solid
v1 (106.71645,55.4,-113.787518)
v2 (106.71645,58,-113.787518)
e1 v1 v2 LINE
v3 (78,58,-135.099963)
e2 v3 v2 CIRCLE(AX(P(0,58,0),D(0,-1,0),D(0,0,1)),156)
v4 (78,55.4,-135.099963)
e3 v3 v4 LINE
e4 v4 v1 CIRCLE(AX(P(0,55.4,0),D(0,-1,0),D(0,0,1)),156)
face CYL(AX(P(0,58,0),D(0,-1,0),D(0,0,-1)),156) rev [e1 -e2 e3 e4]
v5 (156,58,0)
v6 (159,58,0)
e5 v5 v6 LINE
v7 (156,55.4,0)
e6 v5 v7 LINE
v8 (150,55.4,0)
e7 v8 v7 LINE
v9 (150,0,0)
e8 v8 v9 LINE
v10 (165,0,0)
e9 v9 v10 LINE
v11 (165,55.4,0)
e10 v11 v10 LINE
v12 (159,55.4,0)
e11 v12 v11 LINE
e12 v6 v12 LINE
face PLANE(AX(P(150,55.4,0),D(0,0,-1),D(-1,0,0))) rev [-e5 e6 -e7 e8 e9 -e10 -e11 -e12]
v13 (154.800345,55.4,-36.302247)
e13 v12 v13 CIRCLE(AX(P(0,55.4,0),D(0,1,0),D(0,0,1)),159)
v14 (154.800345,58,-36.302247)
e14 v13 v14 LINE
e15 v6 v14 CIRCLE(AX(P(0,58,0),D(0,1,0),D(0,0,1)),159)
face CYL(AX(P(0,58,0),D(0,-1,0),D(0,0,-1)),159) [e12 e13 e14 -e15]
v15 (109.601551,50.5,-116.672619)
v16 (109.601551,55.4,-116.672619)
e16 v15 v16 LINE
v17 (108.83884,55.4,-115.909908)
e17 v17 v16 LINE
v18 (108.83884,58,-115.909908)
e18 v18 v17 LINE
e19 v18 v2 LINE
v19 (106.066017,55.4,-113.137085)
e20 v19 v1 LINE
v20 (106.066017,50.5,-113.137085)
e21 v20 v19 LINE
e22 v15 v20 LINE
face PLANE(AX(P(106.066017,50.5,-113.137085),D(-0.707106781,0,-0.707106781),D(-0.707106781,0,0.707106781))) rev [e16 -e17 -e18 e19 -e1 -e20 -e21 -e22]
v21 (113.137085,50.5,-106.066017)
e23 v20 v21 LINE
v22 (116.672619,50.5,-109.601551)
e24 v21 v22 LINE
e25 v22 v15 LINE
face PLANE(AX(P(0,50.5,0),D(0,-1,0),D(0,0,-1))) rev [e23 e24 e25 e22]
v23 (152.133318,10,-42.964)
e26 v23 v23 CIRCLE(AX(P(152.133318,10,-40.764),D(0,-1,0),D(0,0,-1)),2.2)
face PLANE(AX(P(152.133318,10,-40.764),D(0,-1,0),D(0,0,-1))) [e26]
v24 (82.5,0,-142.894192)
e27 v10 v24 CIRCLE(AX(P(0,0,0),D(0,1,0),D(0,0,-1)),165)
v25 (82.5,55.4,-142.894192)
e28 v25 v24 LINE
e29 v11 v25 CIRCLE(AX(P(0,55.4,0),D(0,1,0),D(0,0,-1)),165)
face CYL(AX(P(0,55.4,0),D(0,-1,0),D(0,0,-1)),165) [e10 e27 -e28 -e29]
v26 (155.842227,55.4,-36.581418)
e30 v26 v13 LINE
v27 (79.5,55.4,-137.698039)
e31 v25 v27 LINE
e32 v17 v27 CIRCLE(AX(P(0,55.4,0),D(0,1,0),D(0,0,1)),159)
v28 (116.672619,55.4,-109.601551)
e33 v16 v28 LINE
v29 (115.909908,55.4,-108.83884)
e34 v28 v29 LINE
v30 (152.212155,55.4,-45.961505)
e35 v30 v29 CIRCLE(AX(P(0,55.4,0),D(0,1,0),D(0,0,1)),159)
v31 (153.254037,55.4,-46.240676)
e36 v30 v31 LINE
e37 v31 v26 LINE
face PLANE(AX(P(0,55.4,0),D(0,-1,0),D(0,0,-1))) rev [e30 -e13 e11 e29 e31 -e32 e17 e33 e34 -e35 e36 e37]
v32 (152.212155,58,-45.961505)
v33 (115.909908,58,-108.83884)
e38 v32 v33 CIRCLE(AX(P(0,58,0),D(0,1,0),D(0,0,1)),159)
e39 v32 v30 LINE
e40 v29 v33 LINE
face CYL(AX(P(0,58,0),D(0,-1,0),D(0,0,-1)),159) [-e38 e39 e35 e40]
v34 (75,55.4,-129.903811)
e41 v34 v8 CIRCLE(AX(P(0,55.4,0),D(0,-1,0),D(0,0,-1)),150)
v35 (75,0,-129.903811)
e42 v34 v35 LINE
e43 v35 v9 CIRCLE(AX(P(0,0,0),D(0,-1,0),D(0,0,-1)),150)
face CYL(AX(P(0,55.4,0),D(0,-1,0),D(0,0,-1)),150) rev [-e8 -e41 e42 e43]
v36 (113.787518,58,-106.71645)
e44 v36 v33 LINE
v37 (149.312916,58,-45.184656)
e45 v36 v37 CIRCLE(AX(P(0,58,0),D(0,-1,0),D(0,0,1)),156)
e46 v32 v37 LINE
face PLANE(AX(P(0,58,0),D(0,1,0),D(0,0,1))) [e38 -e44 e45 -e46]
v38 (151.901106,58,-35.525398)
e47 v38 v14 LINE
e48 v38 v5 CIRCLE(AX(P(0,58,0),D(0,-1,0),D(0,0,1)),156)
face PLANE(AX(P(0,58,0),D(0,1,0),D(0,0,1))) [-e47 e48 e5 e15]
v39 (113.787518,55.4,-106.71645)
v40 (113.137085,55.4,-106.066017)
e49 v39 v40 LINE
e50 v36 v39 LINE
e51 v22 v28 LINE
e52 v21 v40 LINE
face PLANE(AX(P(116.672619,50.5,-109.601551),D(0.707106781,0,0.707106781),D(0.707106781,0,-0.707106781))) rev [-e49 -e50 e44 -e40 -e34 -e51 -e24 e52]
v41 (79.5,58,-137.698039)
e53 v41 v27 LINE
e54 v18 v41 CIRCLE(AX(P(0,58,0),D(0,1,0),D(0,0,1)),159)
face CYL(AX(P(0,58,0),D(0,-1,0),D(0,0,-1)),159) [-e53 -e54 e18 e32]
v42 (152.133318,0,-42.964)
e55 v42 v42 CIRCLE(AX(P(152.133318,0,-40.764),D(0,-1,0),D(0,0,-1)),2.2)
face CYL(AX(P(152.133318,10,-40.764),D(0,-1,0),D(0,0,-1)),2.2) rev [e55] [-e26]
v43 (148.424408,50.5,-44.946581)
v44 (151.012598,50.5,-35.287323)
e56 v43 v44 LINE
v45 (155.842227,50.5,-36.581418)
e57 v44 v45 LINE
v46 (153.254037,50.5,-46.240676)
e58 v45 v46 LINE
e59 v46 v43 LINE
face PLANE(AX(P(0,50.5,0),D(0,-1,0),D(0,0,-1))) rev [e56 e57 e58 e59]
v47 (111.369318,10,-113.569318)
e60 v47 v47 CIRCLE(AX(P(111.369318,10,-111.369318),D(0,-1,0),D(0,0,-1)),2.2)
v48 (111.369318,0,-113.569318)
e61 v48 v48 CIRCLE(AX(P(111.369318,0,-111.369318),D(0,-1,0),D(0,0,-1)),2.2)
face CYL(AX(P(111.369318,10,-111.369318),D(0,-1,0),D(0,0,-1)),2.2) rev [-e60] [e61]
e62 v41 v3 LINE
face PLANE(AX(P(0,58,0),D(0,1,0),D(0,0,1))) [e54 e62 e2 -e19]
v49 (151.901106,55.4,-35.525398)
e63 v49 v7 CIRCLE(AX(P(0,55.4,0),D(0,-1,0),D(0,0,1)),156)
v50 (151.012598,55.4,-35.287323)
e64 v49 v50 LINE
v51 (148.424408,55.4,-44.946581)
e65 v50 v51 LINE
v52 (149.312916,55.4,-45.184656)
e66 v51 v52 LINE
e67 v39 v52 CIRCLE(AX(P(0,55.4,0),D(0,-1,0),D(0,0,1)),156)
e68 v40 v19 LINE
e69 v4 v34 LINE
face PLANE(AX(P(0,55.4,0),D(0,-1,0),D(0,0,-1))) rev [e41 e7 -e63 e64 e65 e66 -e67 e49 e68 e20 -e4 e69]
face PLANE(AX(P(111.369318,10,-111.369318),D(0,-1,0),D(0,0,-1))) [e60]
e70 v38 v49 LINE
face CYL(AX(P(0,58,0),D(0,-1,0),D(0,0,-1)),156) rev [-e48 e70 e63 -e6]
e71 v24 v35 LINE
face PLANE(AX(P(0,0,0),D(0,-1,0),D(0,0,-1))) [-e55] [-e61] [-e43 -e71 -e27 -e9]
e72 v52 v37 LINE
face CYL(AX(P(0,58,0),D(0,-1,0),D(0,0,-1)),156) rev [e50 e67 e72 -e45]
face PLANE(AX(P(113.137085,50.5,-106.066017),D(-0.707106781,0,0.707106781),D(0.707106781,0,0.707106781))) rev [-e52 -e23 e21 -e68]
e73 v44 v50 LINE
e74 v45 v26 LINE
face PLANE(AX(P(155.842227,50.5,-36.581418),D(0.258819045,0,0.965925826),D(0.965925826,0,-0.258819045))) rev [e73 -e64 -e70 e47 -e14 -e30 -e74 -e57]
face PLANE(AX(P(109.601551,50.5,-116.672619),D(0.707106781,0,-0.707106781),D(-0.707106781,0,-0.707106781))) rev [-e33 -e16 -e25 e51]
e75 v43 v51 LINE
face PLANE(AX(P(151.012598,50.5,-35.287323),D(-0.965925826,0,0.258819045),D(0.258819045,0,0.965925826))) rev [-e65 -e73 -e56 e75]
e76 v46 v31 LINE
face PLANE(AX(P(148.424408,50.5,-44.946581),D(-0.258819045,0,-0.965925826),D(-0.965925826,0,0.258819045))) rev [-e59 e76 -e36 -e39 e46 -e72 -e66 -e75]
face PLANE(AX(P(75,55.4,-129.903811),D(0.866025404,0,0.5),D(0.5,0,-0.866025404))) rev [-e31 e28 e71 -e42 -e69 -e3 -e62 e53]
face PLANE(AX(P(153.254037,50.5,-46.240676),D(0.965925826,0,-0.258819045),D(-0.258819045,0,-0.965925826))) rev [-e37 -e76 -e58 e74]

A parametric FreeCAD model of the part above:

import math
import FreeCAD as App
import Part
import Sketcher

V = App.Vector
Q = App.Units.Quantity

doc = App.newDocument("Part")
body = doc.addObject("PartDesign::Body", "Body")

# Sketch on XZ plane
sketch1 = body.newObject("Sketcher::SketchObject", "Sketch")
sketch1.AttachmentSupport = (doc.getObject("XZ_Plane"), [""])
sketch1.MapMode = "FlatFace"
sketch1.addGeometry(Part.LineSegment(V(82, -143, 0), V(75, -130, 0)), False)
sketch1.addGeometry(Part.ArcOfCircle(Part.Circle(V(0, 0, 0), V(0, 0, 1), 150), math.radians(-60), math.radians(0)), False)
sketch1.addGeometry(Part.LineSegment(V(150, 0, 0), V(165, 0, 0)), False)
sketch1.addGeometry(Part.ArcOfCircle(Part.Circle(V(0, 0, 0), V(0, 0, 1), 165), math.radians(-60), math.radians(0)), False)
sketch1.addConstraint(Sketcher.Constraint("Coincident", 0, 2, 1, 1))
sketch1.addConstraint(Sketcher.Constraint("Coincident", 1, 2, 2, 1))
sketch1.addConstraint(Sketcher.Constraint("Coincident", 2, 2, 3, 2))
sketch1.addConstraint(Sketcher.Constraint("Coincident", 3, 1, 0, 1))
sketch1.addConstraint(Sketcher.Constraint("Horizontal", 2))
sketch1.addConstraint(Sketcher.Constraint("Coincident", 1, 3, -1, 1))
sketch1.addConstraint(Sketcher.Constraint("Coincident", 3, 3, -1, 1))
sketch1.addConstraint(Sketcher.Constraint("PointOnObject", 1, 2, -1))
sketch1.addConstraint(Sketcher.Constraint("Radius", 1, Q("150 mm")))
sketch1.addConstraint(Sketcher.Constraint("Radius", 3, Q("165 mm")))
sketch1.addConstraint(Sketcher.Constraint("Angle", 0, Q("120 deg")))
sketch1.addConstraint(Sketcher.Constraint("DistanceX", -1, 1, 0, 2, Q("75 mm")))
pad1 = body.newObject("PartDesign::Pad", "Pad")
pad1.Profile = sketch1
pad1.Length = 55.4
pad1.Reversed = True

# Sketch on XZ plane
sketch2 = body.newObject("Sketcher::SketchObject", "Sketch001")
sketch2.AttachmentSupport = (doc.getObject("XZ_Plane"), [""])
sketch2.MapMode = "FlatFace"
sketch2.AttachmentOffset = App.Placement(V(0, 0, -55.4), App.Rotation())
sketch2.addGeometry(Part.LineSegment(V(79.5, -137.7, 0), V(78, -135.1, 0)), False)
sketch2.addGeometry(Part.ArcOfCircle(Part.Circle(V(0, 0, 0), V(0, 0, 1), 156), math.radians(-60), math.radians(0)), False)
sketch2.addGeometry(Part.LineSegment(V(156, 0, 0), V(159, 0, 0)), False)
sketch2.addGeometry(Part.ArcOfCircle(Part.Circle(V(0, 0, 0), V(0, 0, 1), 159), math.radians(-60), math.radians(0)), False)
sketch2.addConstraint(Sketcher.Constraint("Coincident", 0, 2, 1, 1))
sketch2.addConstraint(Sketcher.Constraint("Coincident", 1, 2, 2, 1))
sketch2.addConstraint(Sketcher.Constraint("Coincident", 2, 2, 3, 2))
sketch2.addConstraint(Sketcher.Constraint("Coincident", 3, 1, 0, 1))
sketch2.addConstraint(Sketcher.Constraint("Horizontal", 2))
sketch2.addConstraint(Sketcher.Constraint("Coincident", 1, 3, -1, 1))
sketch2.addConstraint(Sketcher.Constraint("Coincident", 3, 3, -1, 1))
sketch2.addConstraint(Sketcher.Constraint("PointOnObject", 1, 2, -1))
sketch2.addConstraint(Sketcher.Constraint("Radius", 1, Q("156 mm")))
sketch2.addConstraint(Sketcher.Constraint("Radius", 3, Q("159 mm")))
sketch2.addConstraint(Sketcher.Constraint("Angle", 0, Q("120 deg")))
sketch2.addConstraint(Sketcher.Constraint("DistanceX", -1, 1, 0, 2, Q("78 mm")))
pad2 = body.newObject("PartDesign::Pad", "Pad001")
pad2.Profile = sketch2
pad2.Length = 2.6
pad2.Reversed = True

# Sketch on XZ plane
sketch3 = body.newObject("Sketcher::SketchObject", "Sketch002")
sketch3.AttachmentSupport = (doc.getObject("XZ_Plane"), [""])
sketch3.MapMode = "FlatFace"
sketch3.AttachmentOffset = App.Placement(V(0, 0, -58), App.Rotation())
sketch3.addGeometry(Part.LineSegment(V(153, -46, 0), V(148, -45, 0)), False)
sketch3.addGeometry(Part.LineSegment(V(148, -45, 0), V(151, -35, 0)), False)
sketch3.addGeometry(Part.LineSegment(V(151, -35, 0), V(156, -37, 0)), False)
sketch3.addGeometry(Part.LineSegment(V(156, -37, 0), V(153, -46, 0)), False)
sketch3.addGeometry(Part.LineSegment(V(110, -117, 0), V(106, -113, 0)), False)
sketch3.addGeometry(Part.LineSegment(V(106, -113, 0), V(113, -106, 0)), False)
sketch3.addGeometry(Part.LineSegment(V(113, -106, 0), V(117, -110, 0)), False)
sketch3.addGeometry(Part.LineSegment(V(117, -110, 0), V(110, -117, 0)), False)
sketch3.addConstraint(Sketcher.Constraint("Coincident", 0, 2, 1, 1))
sketch3.addConstraint(Sketcher.Constraint("Coincident", 1, 2, 2, 1))
sketch3.addConstraint(Sketcher.Constraint("Coincident", 2, 2, 3, 1))
sketch3.addConstraint(Sketcher.Constraint("Coincident", 3, 2, 0, 1))
sketch3.addConstraint(Sketcher.Constraint("Coincident", 4, 2, 5, 1))
sketch3.addConstraint(Sketcher.Constraint("Coincident", 5, 2, 6, 1))
sketch3.addConstraint(Sketcher.Constraint("Coincident", 6, 2, 7, 1))
sketch3.addConstraint(Sketcher.Constraint("Coincident", 7, 2, 4, 1))
sketch3.addConstraint(Sketcher.Constraint("Perpendicular", 0, 1))
sketch3.addConstraint(Sketcher.Constraint("Perpendicular", 1, 2))
sketch3.addConstraint(Sketcher.Constraint("Perpendicular", 2, 3))
sketch3.addConstraint(Sketcher.Constraint("Perpendicular", 4, 5))
sketch3.addConstraint(Sketcher.Constraint("Perpendicular", 5, 6))
sketch3.addConstraint(Sketcher.Constraint("Perpendicular", 6, 7))
sketch3.addConstraint(Sketcher.Constraint("Equal", 2, 4))
sketch3.addConstraint(Sketcher.Constraint("Equal", 3, 5))
sketch3.addConstraint(Sketcher.Constraint("Angle", 0, Q("165 deg")))
sketch3.addConstraint(Sketcher.Constraint("Angle", 4, Q("135 deg")))
sketch3.addConstraint(Sketcher.Constraint("Distance", 0, Q("5 mm")))
sketch3.addConstraint(Sketcher.Constraint("Distance", 1, Q("10 mm")))
sketch3.addConstraint(Sketcher.Constraint("DistanceX", -1, 1, 1, 2, Q("151.012598 mm")))
sketch3.addConstraint(Sketcher.Constraint("DistanceY", 5, 2, 2, 2, Q("69.484599 mm")))
sketch3.addConstraint(Sketcher.Constraint("DistanceY", 0, 2, -1, 1, Q("44.946581 mm")))
sketch3.addConstraint(Sketcher.Constraint("DistanceX", -1, 1, 6, 2, Q("116.672619 mm")))
pocket1 = body.newObject("PartDesign::Pocket", "Pocket")
pocket1.Profile = sketch3
pocket1.Length = 7.5
pocket1.Reversed = True

# Sketch on XZ plane
sketch4 = body.newObject("Sketcher::SketchObject", "Sketch003")
sketch4.AttachmentSupport = (doc.getObject("XZ_Plane"), [""])
sketch4.MapMode = "FlatFace"
sketch4.addGeometry(Part.Circle(V(111.4, -111.4, 0), V(0, 0, 1), 2.2), False)
sketch4.addGeometry(Part.Circle(V(152.1, -40.8, 0), V(0, 0, 1), 2.2), False)
sketch4.addConstraint(Sketcher.Constraint("Equal", 0, 1))
sketch4.addConstraint(Sketcher.Constraint("Diameter", 0, Q("4.4 mm")))
sketch4.addConstraint(Sketcher.Constraint("DistanceY", 1, 3, -1, 1, Q("40.764 mm")))
sketch4.addConstraint(Sketcher.Constraint("DistanceX", 0, 3, 1, 3, Q("40.764 mm")))
sketch4.addConstraint(Sketcher.Constraint("DistanceX", -1, 1, 0, 3, Q("111.369318 mm")))
sketch4.addConstraint(Sketcher.Constraint("DistanceY", 0, 3, -1, 1, Q("111.369318 mm")))
pocket2 = body.newObject("PartDesign::Pocket", "Pocket001")
pocket2.Profile = sketch4
pocket2.Length = 10

doc.recompute()
